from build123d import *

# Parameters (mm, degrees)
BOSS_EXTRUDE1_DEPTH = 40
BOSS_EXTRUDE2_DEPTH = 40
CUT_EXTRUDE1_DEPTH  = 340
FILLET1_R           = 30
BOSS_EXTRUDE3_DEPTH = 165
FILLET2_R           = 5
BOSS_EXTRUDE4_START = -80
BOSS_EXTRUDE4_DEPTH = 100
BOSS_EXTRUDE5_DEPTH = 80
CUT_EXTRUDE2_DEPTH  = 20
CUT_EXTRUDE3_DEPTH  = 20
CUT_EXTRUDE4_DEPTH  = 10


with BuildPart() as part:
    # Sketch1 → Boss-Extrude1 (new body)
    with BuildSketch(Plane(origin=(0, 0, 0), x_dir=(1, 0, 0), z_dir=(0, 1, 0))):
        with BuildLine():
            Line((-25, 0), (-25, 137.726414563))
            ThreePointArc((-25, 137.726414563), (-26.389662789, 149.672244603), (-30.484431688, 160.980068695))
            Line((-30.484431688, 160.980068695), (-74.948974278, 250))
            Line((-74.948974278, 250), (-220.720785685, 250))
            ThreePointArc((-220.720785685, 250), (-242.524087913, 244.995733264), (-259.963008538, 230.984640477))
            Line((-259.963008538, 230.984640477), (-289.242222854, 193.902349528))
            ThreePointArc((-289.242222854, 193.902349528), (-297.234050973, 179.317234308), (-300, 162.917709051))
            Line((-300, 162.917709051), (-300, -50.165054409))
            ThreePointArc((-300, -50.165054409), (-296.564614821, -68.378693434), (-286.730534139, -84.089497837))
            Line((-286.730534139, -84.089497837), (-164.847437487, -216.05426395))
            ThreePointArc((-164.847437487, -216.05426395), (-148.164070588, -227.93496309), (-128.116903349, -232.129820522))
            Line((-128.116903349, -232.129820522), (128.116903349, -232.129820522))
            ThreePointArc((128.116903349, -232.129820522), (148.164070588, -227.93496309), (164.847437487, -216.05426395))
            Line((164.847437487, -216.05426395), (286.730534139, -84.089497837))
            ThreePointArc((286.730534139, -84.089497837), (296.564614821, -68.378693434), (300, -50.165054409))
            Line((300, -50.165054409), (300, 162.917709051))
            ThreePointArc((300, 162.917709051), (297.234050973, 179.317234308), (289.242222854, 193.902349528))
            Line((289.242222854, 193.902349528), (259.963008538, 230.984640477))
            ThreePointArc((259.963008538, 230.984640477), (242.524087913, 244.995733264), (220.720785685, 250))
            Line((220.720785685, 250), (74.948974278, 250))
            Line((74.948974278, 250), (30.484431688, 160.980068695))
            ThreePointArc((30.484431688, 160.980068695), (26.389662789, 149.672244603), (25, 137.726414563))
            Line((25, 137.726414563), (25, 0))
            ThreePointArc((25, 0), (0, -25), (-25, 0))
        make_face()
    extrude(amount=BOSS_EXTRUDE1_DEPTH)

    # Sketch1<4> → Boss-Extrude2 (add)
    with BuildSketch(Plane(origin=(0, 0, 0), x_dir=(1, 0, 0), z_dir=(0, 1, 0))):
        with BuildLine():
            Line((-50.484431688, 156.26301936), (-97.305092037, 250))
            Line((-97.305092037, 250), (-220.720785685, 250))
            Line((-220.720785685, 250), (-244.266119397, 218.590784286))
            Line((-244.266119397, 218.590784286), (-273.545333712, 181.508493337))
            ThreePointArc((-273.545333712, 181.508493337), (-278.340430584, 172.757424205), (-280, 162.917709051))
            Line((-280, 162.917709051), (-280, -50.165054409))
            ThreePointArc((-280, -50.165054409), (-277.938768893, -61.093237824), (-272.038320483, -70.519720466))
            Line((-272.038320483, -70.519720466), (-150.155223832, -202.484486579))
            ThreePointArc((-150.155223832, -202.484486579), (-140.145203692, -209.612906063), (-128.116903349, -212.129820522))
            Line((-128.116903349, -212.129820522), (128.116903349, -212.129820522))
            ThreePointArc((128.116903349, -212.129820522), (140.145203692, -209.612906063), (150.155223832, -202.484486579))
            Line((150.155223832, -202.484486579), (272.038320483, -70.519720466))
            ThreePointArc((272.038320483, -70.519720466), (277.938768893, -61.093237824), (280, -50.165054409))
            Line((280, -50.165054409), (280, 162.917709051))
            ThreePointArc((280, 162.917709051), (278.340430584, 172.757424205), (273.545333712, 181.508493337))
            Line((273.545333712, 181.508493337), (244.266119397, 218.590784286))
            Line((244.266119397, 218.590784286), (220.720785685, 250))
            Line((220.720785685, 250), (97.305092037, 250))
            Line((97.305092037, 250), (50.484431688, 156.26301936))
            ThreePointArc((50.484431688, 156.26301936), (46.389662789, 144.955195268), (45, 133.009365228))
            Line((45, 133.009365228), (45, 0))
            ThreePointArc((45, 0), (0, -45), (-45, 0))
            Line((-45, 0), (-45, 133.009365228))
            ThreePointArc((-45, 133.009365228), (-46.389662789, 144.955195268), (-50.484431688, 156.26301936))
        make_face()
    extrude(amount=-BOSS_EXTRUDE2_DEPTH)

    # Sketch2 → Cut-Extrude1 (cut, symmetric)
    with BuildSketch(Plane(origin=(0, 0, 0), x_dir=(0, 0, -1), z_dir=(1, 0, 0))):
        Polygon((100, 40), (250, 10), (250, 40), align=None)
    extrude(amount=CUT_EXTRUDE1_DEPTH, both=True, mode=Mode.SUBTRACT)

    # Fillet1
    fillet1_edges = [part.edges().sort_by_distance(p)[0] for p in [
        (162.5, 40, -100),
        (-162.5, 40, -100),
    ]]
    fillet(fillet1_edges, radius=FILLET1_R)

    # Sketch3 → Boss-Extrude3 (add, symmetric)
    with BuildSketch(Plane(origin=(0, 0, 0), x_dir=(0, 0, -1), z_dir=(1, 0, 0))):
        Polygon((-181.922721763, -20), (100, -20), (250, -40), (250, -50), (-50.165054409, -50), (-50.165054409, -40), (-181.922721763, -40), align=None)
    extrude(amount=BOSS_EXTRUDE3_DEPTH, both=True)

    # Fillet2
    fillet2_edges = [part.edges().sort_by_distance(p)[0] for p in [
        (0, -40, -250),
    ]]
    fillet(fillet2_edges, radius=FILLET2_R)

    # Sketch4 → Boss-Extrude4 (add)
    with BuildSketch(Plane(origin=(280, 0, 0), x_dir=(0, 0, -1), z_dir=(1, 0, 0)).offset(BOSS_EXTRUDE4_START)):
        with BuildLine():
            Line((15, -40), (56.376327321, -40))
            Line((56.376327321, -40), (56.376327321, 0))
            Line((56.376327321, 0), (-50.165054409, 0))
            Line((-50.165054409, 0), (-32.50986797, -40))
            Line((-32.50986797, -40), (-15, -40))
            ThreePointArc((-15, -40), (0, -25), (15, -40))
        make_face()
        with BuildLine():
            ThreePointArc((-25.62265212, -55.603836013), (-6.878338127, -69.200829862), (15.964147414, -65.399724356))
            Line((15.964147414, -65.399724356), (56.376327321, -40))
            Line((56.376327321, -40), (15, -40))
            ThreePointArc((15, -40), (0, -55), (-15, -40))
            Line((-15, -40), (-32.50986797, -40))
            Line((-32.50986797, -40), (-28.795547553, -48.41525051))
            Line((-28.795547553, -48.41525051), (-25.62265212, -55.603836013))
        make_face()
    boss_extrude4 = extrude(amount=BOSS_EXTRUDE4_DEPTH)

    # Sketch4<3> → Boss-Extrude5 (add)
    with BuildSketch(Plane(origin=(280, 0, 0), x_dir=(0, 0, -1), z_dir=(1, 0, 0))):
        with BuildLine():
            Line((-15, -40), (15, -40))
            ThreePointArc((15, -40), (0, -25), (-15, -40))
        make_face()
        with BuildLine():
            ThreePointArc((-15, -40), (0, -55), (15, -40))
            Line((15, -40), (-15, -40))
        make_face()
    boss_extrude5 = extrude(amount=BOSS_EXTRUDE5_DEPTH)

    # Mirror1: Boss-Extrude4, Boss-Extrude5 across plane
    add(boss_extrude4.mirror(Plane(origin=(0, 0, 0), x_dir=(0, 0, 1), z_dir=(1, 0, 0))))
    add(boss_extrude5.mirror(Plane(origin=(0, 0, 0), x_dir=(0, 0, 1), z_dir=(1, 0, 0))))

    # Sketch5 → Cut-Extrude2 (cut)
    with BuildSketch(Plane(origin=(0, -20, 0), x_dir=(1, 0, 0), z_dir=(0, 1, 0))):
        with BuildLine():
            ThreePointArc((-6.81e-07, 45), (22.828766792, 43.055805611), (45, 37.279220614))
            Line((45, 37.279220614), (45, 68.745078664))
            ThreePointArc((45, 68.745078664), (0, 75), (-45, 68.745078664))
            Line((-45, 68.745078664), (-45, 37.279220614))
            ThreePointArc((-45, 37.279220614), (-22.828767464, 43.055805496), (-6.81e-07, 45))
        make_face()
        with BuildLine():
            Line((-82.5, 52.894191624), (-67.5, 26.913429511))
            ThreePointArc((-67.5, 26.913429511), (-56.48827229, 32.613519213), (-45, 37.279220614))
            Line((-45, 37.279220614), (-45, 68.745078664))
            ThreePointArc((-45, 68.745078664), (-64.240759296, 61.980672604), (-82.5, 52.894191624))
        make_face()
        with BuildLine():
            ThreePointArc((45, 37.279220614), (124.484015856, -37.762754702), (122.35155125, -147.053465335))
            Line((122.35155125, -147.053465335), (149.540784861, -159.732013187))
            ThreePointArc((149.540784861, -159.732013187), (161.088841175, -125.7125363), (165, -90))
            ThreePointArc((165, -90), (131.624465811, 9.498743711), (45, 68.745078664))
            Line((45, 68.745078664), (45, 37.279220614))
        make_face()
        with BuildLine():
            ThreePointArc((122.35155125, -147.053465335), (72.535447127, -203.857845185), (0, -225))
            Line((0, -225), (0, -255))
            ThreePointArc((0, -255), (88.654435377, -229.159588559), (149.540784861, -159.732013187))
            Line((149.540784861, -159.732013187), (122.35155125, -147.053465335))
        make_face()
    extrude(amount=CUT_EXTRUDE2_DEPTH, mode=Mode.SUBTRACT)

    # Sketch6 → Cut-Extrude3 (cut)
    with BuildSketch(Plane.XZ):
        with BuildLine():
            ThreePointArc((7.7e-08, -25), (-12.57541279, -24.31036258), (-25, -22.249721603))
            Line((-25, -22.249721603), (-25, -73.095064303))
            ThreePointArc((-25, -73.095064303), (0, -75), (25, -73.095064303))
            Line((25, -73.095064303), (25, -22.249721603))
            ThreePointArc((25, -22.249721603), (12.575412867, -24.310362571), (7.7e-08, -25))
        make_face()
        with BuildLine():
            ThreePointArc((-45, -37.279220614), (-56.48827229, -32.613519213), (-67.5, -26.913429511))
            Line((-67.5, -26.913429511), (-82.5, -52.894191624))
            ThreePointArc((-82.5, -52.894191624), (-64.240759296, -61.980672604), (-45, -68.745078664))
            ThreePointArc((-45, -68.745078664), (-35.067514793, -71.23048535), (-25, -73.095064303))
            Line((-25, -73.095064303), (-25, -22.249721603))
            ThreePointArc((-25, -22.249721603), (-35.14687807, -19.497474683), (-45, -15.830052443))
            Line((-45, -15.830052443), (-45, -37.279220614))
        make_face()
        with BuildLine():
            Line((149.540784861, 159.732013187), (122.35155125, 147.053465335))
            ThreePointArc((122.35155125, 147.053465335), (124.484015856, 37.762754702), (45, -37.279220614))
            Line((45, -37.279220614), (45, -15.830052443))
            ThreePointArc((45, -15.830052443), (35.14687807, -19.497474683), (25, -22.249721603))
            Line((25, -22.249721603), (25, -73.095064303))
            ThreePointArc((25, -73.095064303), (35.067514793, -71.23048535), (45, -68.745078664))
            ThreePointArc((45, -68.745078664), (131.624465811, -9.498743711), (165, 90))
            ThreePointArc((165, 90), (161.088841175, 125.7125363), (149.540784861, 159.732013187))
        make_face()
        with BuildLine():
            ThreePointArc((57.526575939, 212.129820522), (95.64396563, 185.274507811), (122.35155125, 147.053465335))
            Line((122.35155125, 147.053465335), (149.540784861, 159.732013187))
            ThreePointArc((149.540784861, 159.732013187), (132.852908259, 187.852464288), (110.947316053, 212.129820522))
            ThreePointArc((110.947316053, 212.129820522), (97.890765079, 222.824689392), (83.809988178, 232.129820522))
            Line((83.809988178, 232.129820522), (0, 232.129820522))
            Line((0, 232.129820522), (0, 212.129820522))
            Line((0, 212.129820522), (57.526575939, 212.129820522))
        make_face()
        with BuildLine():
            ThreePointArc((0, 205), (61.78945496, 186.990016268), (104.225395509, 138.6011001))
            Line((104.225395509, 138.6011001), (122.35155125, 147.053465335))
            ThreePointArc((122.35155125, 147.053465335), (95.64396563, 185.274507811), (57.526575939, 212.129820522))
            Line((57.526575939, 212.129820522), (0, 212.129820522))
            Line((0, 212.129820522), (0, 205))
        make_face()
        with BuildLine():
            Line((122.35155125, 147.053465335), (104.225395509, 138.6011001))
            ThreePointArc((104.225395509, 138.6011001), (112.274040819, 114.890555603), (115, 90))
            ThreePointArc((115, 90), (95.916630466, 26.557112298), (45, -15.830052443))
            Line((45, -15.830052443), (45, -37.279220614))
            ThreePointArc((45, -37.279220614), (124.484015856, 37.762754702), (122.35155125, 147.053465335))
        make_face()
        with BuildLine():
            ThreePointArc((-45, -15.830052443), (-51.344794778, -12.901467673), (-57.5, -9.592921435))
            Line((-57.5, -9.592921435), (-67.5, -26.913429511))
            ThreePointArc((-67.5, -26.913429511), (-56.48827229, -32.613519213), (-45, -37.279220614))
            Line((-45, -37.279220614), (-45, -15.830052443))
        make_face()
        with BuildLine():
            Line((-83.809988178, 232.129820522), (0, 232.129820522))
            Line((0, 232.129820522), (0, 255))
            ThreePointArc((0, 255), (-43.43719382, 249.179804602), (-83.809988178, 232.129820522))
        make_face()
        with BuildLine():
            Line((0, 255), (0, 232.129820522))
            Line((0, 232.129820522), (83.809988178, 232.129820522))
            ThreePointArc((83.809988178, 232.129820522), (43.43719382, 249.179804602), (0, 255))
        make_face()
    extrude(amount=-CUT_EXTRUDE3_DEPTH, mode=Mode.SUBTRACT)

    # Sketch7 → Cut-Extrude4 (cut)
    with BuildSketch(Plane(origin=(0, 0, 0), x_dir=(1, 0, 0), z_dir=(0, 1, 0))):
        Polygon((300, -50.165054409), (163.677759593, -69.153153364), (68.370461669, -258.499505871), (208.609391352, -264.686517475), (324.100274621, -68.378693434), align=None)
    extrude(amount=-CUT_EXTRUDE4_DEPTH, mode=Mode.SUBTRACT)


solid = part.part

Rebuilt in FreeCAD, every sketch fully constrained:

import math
import FreeCAD as App
import Part
import Sketcher

V = App.Vector
Q = App.Units.Quantity


def edges_at(feature, points):
    """Names of the edges that pass closest to the given points."""
    edges = feature.Shape.Edges
    near = lambda p: min(range(len(edges)), key=lambda i: edges[i].distToShape(Part.Vertex(*p))[0])
    return sorted({f"Edge{near(p) + 1}" for p in points})


def add_polygon(sketch, points):
    """Adds a closed chain of lines whose ends are joined by coincident constraints."""
    first, n = sketch.GeometryCount, len(points)
    for a, b in zip(points, points[1:] + points[:1]):
        sketch.addGeometry(Part.LineSegment(App.Vector(*a, 0), App.Vector(*b, 0)), False)
    for i in range(n):
        sketch.addConstraint(Sketcher.Constraint("Coincident", first + i, 2, first + (i + 1) % n, 1))

doc = App.newDocument("Part")
body = doc.addObject("PartDesign::Body", "Body")

# Sketch on XZ plane
sketch1 = body.newObject("Sketcher::SketchObject", "Sketch")
sketch1.AttachmentSupport = (doc.getObject("XZ_Plane"), [""])
sketch1.MapMode = "FlatFace"
sketch1.addGeometry([
    Part.LineSegment(V(-25, 0, 0), V(-25, -137.726415, 0)),  # 0
    Part.ArcOfCircle(Part.Circle(V(-77.03925, -137.726415, 0), V(0, 0, 1), 52.03925), math.radians(-26.541658), math.radians(0)),  # 1
    Part.LineSegment(V(-30.484432, -160.980069, 0), V(-74.948974, -250, 0)),  # 2
    Part.LineSegment(V(-74.948974, -250, 0), V(-220.720786, -250, 0)),  # 3
    Part.ArcOfCircle(Part.Circle(V(-220.720786, -200, 0), V(0, 0, 1), 50), math.radians(-141.706295), math.radians(-90)),  # 4
    Part.LineSegment(V(-259.963009, -230.98464, 0), V(-289.242223, -193.90235, 0)),  # 5
    Part.ArcOfCircle(Part.Circle(V(-250, -162.917709, 0), V(0, 0, 1), 50), math.radians(-180), math.radians(-141.706295)),  # 6
    Part.LineSegment(V(-300, -162.917709, 0), V(-300, 50.165054, 0)),  # 7
    Part.ArcOfCircle(Part.Circle(V(-250, 50.165054, 0), V(0, 0, 1), 50), math.radians(137.27433), math.radians(180)),  # 8
    Part.LineSegment(V(-286.730534, 84.089498, 0), V(-164.847437, 216.054264, 0)),  # 9
    Part.ArcOfCircle(Part.Circle(V(-128.116903, 182.129821, 0), V(0, 0, 1), 50), math.radians(90), math.radians(137.27433)),  # 10
    Part.LineSegment(V(-128.116903, 232.129821, 0), V(128.116903, 232.129821, 0)),  # 11
    Part.ArcOfCircle(Part.Circle(V(128.116903, 182.129821, 0), V(0, 0, 1), 50), math.radians(42.72567), math.radians(90)),  # 12
    Part.LineSegment(V(164.847437, 216.054264, 0), V(286.730534, 84.089498, 0)),  # 13
    Part.ArcOfCircle(Part.Circle(V(250, 50.165054, 0), V(0, 0, 1), 50), math.radians(0), math.radians(42.72567)),  # 14
    Part.LineSegment(V(300, 50.165054, 0), V(300, -162.917709, 0)),  # 15
    Part.ArcOfCircle(Part.Circle(V(250, -162.917709, 0), V(0, 0, 1), 50), math.radians(-38.293705), math.radians(0)),  # 16
    Part.LineSegment(V(289.242223, -193.90235, 0), V(259.963009, -230.98464, 0)),  # 17
    Part.ArcOfCircle(Part.Circle(V(220.720786, -200, 0), V(0, 0, 1), 50), math.radians(-90), math.radians(-38.293705)),  # 18
    Part.LineSegment(V(220.720786, -250, 0), V(74.948974, -250, 0)),  # 19
    Part.LineSegment(V(74.948974, -250, 0), V(30.484432, -160.980069, 0)),  # 20
    Part.ArcOfCircle(Part.Circle(V(77.03925, -137.726415, 0), V(0, 0, 1), 52.03925), math.radians(-180), math.radians(-153.458342)),  # 21
    Part.LineSegment(V(25, -137.726415, 0), V(25, 0, 0)),  # 22
    Part.ArcOfCircle(Part.Circle(V(0, 0, 0), V(0, 0, 1), 25), math.radians(0), math.radians(180)),  # 23
], False)
sketch1.addConstraint([
    Sketcher.Constraint("Tangent", 0, 2, 1, 2),
    Sketcher.Constraint("Tangent", 1, 1, 2, 1),
    Sketcher.Constraint("Coincident", 2, 2, 3, 1),
    Sketcher.Constraint("Tangent", 3, 2, 4, 2),
    Sketcher.Constraint("Tangent", 4, 1, 5, 1),
    Sketcher.Constraint("Tangent", 5, 2, 6, 2),
    Sketcher.Constraint("Tangent", 6, 1, 7, 1),
    Sketcher.Constraint("Tangent", 7, 2, 8, 2),
    Sketcher.Constraint("Tangent", 8, 1, 9, 1),
    Sketcher.Constraint("Tangent", 9, 2, 10, 2),
    Sketcher.Constraint("Tangent", 10, 1, 11, 1),
    Sketcher.Constraint("Tangent", 11, 2, 12, 2),
    Sketcher.Constraint("Tangent", 12, 1, 13, 1),
    Sketcher.Constraint("Tangent", 13, 2, 14, 2),
    Sketcher.Constraint("Tangent", 14, 1, 15, 1),
    Sketcher.Constraint("Tangent", 15, 2, 16, 2),
    Sketcher.Constraint("Tangent", 16, 1, 17, 1),
    Sketcher.Constraint("Tangent", 17, 2, 18, 2),
    Sketcher.Constraint("Tangent", 18, 1, 19, 1),
    Sketcher.Constraint("Coincident", 19, 2, 20, 1),
    Sketcher.Constraint("Tangent", 20, 2, 21, 2),
    Sketcher.Constraint("Tangent", 21, 1, 22, 1),
    Sketcher.Constraint("Tangent", 22, 2, 23, 1),
    Sketcher.Constraint("Tangent", 23, 2, 0, 1),
    Sketcher.Constraint("Vertical", 0),
    Sketcher.Constraint("Horizontal", 3),
    Sketcher.Constraint("Vertical", 7),
    Sketcher.Constraint("Horizontal", 11),
    Sketcher.Constraint("Vertical", 15),
    Sketcher.Constraint("Horizontal", 19),
    Sketcher.Constraint("Vertical", 22),
    Sketcher.Constraint("Coincident", 23, 3, -1, 1),
    Sketcher.Constraint("Equal", 4, 6),
    Sketcher.Constraint("Equal", 6, 8),
    Sketcher.Constraint("Equal", 8, 10),
    Sketcher.Constraint("Equal", 10, 12),
    Sketcher.Constraint("Equal", 12, 14),
    Sketcher.Constraint("Equal", 14, 16),
    Sketcher.Constraint("Equal", 16, 18),
    Sketcher.Constraint("Equal", 1, 21),
    Sketcher.Constraint("Symmetric", 8, 3, 14, 3, -2),
    Sketcher.Constraint("Symmetric", 4, 3, 18, 3, -2),
    Sketcher.Constraint("Symmetric", 1, 1, 20, 2, -2),
    Sketcher.Constraint("Horizontal", 6, 3, 16, 3),
    Sketcher.Constraint("Horizontal", 9, 2, 12, 1),
    Sketcher.Constraint("Radius", 4, 50.0),
    Sketcher.Constraint("Radius", 23, 25.0),
    Sketcher.Constraint("DistanceY", 4, 3, -1, 1, 200.0),
    Sketcher.Constraint("DistanceX", 6, 3, -1, 1, 250.0),
    Sketcher.Constraint("Radius", 1, 52.03925),
    Sketcher.Constraint("DistanceX", 3, 2, 3, 1, 145.771811),
    Sketcher.Constraint("Distance", 5, 47.247949),
    Sketcher.Constraint("Distance", 9, 179.639051),
    Sketcher.Constraint("DistanceX", 11, 1, 11, 2, 256.233807),
    Sketcher.Constraint("DistanceY", 0, 2, 0, 1, 137.726415),
    Sketcher.Constraint("DistanceY", 7, 1, 7, 2, 213.082763),
    Sketcher.Constraint("DistanceY", 6, 3, -1, 1, 162.917709),
])
pad1 = body.newObject("PartDesign::Pad", "Pad")
pad1.Profile = sketch1
pad1.Length = 40
pad1.Reversed = True

# Sketch on XZ plane
sketch2 = body.newObject("Sketcher::SketchObject", "Sketch001")
sketch2.AttachmentSupport = (doc.getObject("XZ_Plane"), [""])
sketch2.MapMode = "FlatFace"
sketch2.addGeometry([
    Part.LineSegment(V(-50.484432, -156.263019, 0), V(-97.305092, -250, 0)),  # 0
    Part.LineSegment(V(-97.305092, -250, 0), V(-220.720786, -250, 0)),  # 1
    Part.LineSegment(V(-220.720786, -250, 0), V(-244.266119, -218.590784, 0)),  # 2
    Part.LineSegment(V(-244.266119, -218.590784, 0), V(-273.545334, -181.508493, 0)),  # 3
    Part.ArcOfCircle(Part.Circle(V(-250, -162.917709, 0), V(0, 0, 1), 30), math.radians(180), math.radians(218.293705)),  # 4
    Part.LineSegment(V(-280, -162.917709, 0), V(-280, 50.165054, 0)),  # 5
    Part.ArcOfCircle(Part.Circle(V(-250, 50.165054, 0), V(0, 0, 1), 30), math.radians(137.27433), math.radians(180)),  # 6
    Part.LineSegment(V(-272.03832, 70.51972, 0), V(-150.155224, 202.484487, 0)),  # 7
    Part.ArcOfCircle(Part.Circle(V(-128.116903, 182.129821, 0), V(0, 0, 1), 30), math.radians(90), math.radians(137.27433)),  # 8
    Part.LineSegment(V(-128.116903, 212.129821, 0), V(128.116903, 212.129821, 0)),  # 9
    Part.ArcOfCircle(Part.Circle(V(128.116903, 182.129821, 0), V(0, 0, 1), 30), math.radians(42.72567), math.radians(90)),  # 10
    Part.LineSegment(V(150.155224, 202.484487, 0), V(272.03832, 70.51972, 0)),  # 11
    Part.ArcOfCircle(Part.Circle(V(250, 50.165054, 0), V(0, 0, 1), 30), math.radians(0), math.radians(42.72567)),  # 12
    Part.LineSegment(V(280, 50.165054, 0), V(280, -162.917709, 0)),  # 13
    Part.ArcOfCircle(Part.Circle(V(250, -162.917709, 0), V(0, 0, 1), 30), math.radians(-38.293705), math.radians(0)),  # 14
    Part.LineSegment(V(273.545334, -181.508493, 0), V(244.266119, -218.590784, 0)),  # 15
    Part.LineSegment(V(244.266119, -218.590784, 0), V(220.720786, -250, 0)),  # 16
    Part.LineSegment(V(220.720786, -250, 0), V(97.305092, -250, 0)),  # 17
    Part.LineSegment(V(97.305092, -250, 0), V(50.484432, -156.263019, 0)),  # 18
    Part.ArcOfCircle(Part.Circle(V(97.03925, -133.009365, 0), V(0, 0, 1), 52.03925), math.radians(-180), math.radians(-153.458342)),  # 19
    Part.LineSegment(V(45, -133.009365, 0), V(45, 0, 0)),  # 20
    Part.ArcOfCircle(Part.Circle(V(0, 0, 0), V(0, 0, 1), 45), math.radians(0), math.radians(180)),  # 21
    Part.LineSegment(V(-45, 0, 0), V(-45, -133.009365, 0)),  # 22
    Part.ArcOfCircle(Part.Circle(V(-97.03925, -133.009365, 0), V(0, 0, 1), 52.03925), math.radians(-26.541658), math.radians(0)),  # 23
], False)
sketch2.addConstraint([
    Sketcher.Constraint("Coincident", 0, 2, 1, 1),
    Sketcher.Constraint("Coincident", 1, 2, 2, 1),
    Sketcher.Constraint("Coincident", 2, 2, 3, 1),
    Sketcher.Constraint("Tangent", 3, 2, 4, 2),
    Sketcher.Constraint("Tangent", 4, 1, 5, 1),
    Sketcher.Constraint("Tangent", 5, 2, 6, 2),
    Sketcher.Constraint("Tangent", 6, 1, 7, 1),
    Sketcher.Constraint("Tangent", 7, 2, 8, 2),
    Sketcher.Constraint("Tangent", 8, 1, 9, 1),
    Sketcher.Constraint("Tangent", 9, 2, 10, 2),
    Sketcher.Constraint("Tangent", 10, 1, 11, 1),
    Sketcher.Constraint("Tangent", 11, 2, 12, 2),
    Sketcher.Constraint("Tangent", 12, 1, 13, 1),
    Sketcher.Constraint("Tangent", 13, 2, 14, 2),
    Sketcher.Constraint("Tangent", 14, 1, 15, 1),
    Sketcher.Constraint("Coincident", 15, 2, 16, 1),
    Sketcher.Constraint("Coincident", 16, 2, 17, 1),
    Sketcher.Constraint("Coincident", 17, 2, 18, 1),
    Sketcher.Constraint("Tangent", 18, 2, 19, 2),
    Sketcher.Constraint("Tangent", 19, 1, 20, 1),
    Sketcher.Constraint("Tangent", 20, 2, 21, 1),
    Sketcher.Constraint("Tangent", 21, 2, 22, 1),
    Sketcher.Constraint("Tangent", 22, 2, 23, 2),
    Sketcher.Constraint("Tangent", 23, 1, 0, 1),
    Sketcher.Constraint("Horizontal", 1),
    Sketcher.Constraint("Vertical", 5),
    Sketcher.Constraint("Horizontal", 9),
    Sketcher.Constraint("Vertical", 13),
    Sketcher.Constraint("Horizontal", 17),
    Sketcher.Constraint("Vertical", 20),
    Sketcher.Constraint("Vertical", 22),
    Sketcher.Constraint("Coincident", 21, 3, -1, 1),
    Sketcher.Constraint("Equal", 4, 6),
    Sketcher.Constraint("Equal", 6, 8),
    Sketcher.Constraint("Equal", 8, 10),
    Sketcher.Constraint("Equal", 10, 12),
    Sketcher.Constraint("Equal", 12, 14),
    Sketcher.Constraint("Equal", 19, 23),
    Sketcher.Constraint("Symmetric", 6, 3, 12, 3, -2),
    Sketcher.Constraint("Symmetric", 3, 2, 14, 1, -2),
    Sketcher.Constraint("Symmetric", 1, 2, 16, 2, -2),
    Sketcher.Constraint("Symmetric", 18, 2, 23, 1, -2),
    Sketcher.Constraint("Horizontal", 7, 2, 10, 1),
    Sketcher.Constraint("Horizontal", 2, 2, 15, 2),
    Sketcher.Constraint("Radius", 4, 30.0),
    Sketcher.Constraint("Radius", 21, 45.0),
    Sketcher.Constraint("DistanceX", 4, 3, -1, 1, 250.0),
    Sketcher.Constraint("DistanceY", 0, 2, -1, 1, 250.0),
    Sketcher.Constraint("Radius", 19, 52.03925),
    Sketcher.Constraint("DistanceY", 6, 1, 8, 3, 111.6101),
    Sketcher.Constraint("Distance", 0, 104.779749),
    Sketcher.Constraint("Distance", 3, 47.247949),
    Sketcher.Constraint("Distance", 7, 179.639051),
    Sketcher.Constraint("DistanceX", 1, 2, 1, 1, 123.415694),
    Sketcher.Constraint("DistanceY", 5, 1, 5, 2, 213.082763),
    Sketcher.Constraint("DistanceY", 4, 3, -1, 1, 162.917709),
    Sketcher.Constraint("DistanceX", 2, 2, -1, 1, 244.266119),
    Sketcher.Constraint("DistanceX", -1, 1, 18, 2, 50.484432),
])
pad2 = body.newObject("PartDesign::Pad", "Pad001")
pad2.Profile = sketch2
pad2.Length = 40

# Sketch on YZ plane
sketch3 = body.newObject("Sketcher::SketchObject", "Sketch002")
sketch3.AttachmentSupport = (doc.getObject("YZ_Plane"), [""])
sketch3.MapMode = "FlatFace"
add_polygon(sketch3, [(40, -100), (10, -250), (40, -250)])  # lines 0-2
sketch3.addConstraint([
    Sketcher.Constraint("Horizontal", 1),
    Sketcher.Constraint("Vertical", 2),
    Sketcher.Constraint("DistanceX", 1, 1, 1, 2, 30.0),
    Sketcher.Constraint("DistanceY", 2, 1, 2, 2, 150.0),
    Sketcher.Constraint("DistanceX", -1, 1, 0, 2, 10.0),
    Sketcher.Constraint("DistanceY", 0, 2, -1, 1, 250.0),
])
pocket1 = body.newObject("PartDesign::Pocket", "Pocket")
pocket1.Profile = sketch3
pocket1.Length = 680
pocket1.Midplane = True
doc.recompute()

fillet = body.newObject("PartDesign::Fillet", "Fillet")
fillet.Base = (pocket1, edges_at(pocket1, [(162.5, 40, -100), (-162.5, 40, -100)]))
fillet.Radius = 30

# Sketch on YZ plane
sketch4 = body.newObject("Sketcher::SketchObject", "Sketch003")
sketch4.AttachmentSupport = (doc.getObject("YZ_Plane"), [""])
sketch4.MapMode = "FlatFace"
add_polygon(sketch4, [(-20, -100), (-20, 181.922722), (-40, 181.922722), (-40, 50.165054), (-50, 50.165054), (-50, -250), (-40, -250)])  # lines 0-6
sketch4.addConstraint([
    Sketcher.Constraint("Vertical", 0),
    Sketcher.Constraint("Horizontal", 1),
    Sketcher.Constraint("Vertical", 2),
    Sketcher.Constraint("Horizontal", 3),
    Sketcher.Constraint("Vertical", 4),
    Sketcher.Constraint("Horizontal", 5),
    Sketcher.Constraint("Vertical", 2, 2, 5, 2),
    Sketcher.Constraint("DistanceX", 1, 2, 1, 1, 20.0),
    Sketcher.Constraint("DistanceX", 3, 2, 3, 1, 10.0),
    Sketcher.Constraint("DistanceX", 0, 2, -1, 1, 20.0),
    Sketcher.Constraint("DistanceY", 4, 2, -1, 1, 250.0),
    Sketcher.Constraint("DistanceY", 6, 2, -1, 1, 100.0),
    Sketcher.Constraint("DistanceY", 0, 1, 0, 2, 281.922722),
    Sketcher.Constraint("DistanceY", 2, 2, 2, 1, 131.757667),
])
pad3 = body.newObject("PartDesign::Pad", "Pad002")
pad3.Profile = sketch4
pad3.Length = 330
pad3.Midplane = True
doc.recompute()

fillet2 = body.newObject("PartDesign::Fillet", "Fillet001")
fillet2.Base = (pad3, edges_at(pad3, [(0, -40, -250)]))
fillet2.Radius = 5

# Sketch on YZ plane
sketch5 = body.newObject("Sketcher::SketchObject", "Sketch004")
sketch5.AttachmentSupport = (doc.getObject("YZ_Plane"), [""])
sketch5.MapMode = "FlatFace"
sketch5.AttachmentOffset = App.Placement(V(0, 0, 200), App.Rotation())
sketch5.addGeometry([
    Part.LineSegment(V(-40, -56.376327, 0), V(0, -56.376327, 0)),  # 0
    Part.LineSegment(V(0, -56.376327, 0), V(0, 50.165054, 0)),  # 1
    Part.LineSegment(V(0, 50.165054, 0), V(-40, 32.509868, 0)),  # 2
    Part.LineSegment(V(-40, 32.509868, 0), V(-48.415251, 28.795548, 0)),  # 3
    Part.LineSegment(V(-48.415251, 28.795548, 0), V(-55.603836, 25.622652, 0)),  # 4
    Part.ArcOfCircle(Part.Circle(V(-40, 0, 0), V(0, 0, 1), 30), math.radians(121.340829), math.radians(212.150042)),  # 5
    Part.LineSegment(V(-65.399724, -15.964147, 0), V(-40, -56.376327, 0)),  # 6
    Part.Circle(V(-40, 0, 0), V(0, 0, 1), 15),  # 7
], False)
sketch5.addConstraint([
    Sketcher.Constraint("Coincident", 0, 2, 1, 1),
    Sketcher.Constraint("Coincident", 1, 2, 2, 1),
    Sketcher.Constraint("Coincident", 2, 2, 3, 1),
    Sketcher.Constraint("Coincident", 3, 2, 4, 1),
    Sketcher.Constraint("Coincident", 4, 2, 5, 1),
    Sketcher.Constraint("Tangent", 5, 2, 6, 1),
    Sketcher.Constraint("Coincident", 6, 2, 0, 1),
    Sketcher.Constraint("Horizontal", 0),
    Sketcher.Constraint("Vertical", 1),
    Sketcher.Constraint("Coincident", 7, 3, 5, 3),
    Sketcher.Constraint("PointOnObject", 5, 3, -1),
    Sketcher.Constraint("PointOnObject", 0, 2, -2),
    Sketcher.Constraint("Parallel", 2, 3),
    Sketcher.Constraint("Parallel", 3, 4),
    Sketcher.Constraint("Vertical", 7, 3, 2, 2),
    Sketcher.Constraint("Vertical", 2, 2, 6, 2),
    Sketcher.Constraint("Diameter", 7, 30.0),
    Sketcher.Constraint("Radius", 5, 30.0),
    Sketcher.Constraint("DistanceX", 0, 1, 0, 2, 40.0),
    Sketcher.Constraint("DistanceY", 1, 1, 1, 2, 106.541382),
    Sketcher.Constraint("DistanceY", 5, 2, 4, 2, 41.5868),
    Sketcher.Constraint("Distance", 3, 9.198512),
    Sketcher.Constraint("Distance", 6, 47.731439),
])
pad4 = body.newObject("PartDesign::Pad", "Pad003")
pad4.Profile = sketch5
pad4.Length = 100

# Sketch on YZ plane
sketch6 = body.newObject("Sketcher::SketchObject", "Sketch005")
sketch6.AttachmentSupport = (doc.getObject("YZ_Plane"), [""])
sketch6.MapMode = "FlatFace"
sketch6.AttachmentOffset = App.Placement(V(0, 0, 280), App.Rotation())
sketch6.addGeometry(Part.Circle(V(-40, 0, 0), V(0, 0, 1), 15), False)
sketch6.addConstraint([
    Sketcher.Constraint("PointOnObject", 0, 3, -1),
    Sketcher.Constraint("Diameter", 0, 30.0),
    Sketcher.Constraint("DistanceX", 0, 3, -1, 1, 40.0),
])
pad5 = body.newObject("PartDesign::Pad", "Pad004")
pad5.Profile = sketch6
pad5.Length = 80
doc.recompute()

mirrored = body.newObject("PartDesign::Mirrored", "Mirrored")
mirrored.Originals = [pad4, pad5]
mirrored.MirrorPlane = (doc.getObject("YZ_Plane"), [""])
body.Tip = mirrored

# Sketch on XZ plane
sketch7 = body.newObject("Sketcher::SketchObject", "Sketch006")
sketch7.AttachmentSupport = (doc.getObject("XZ_Plane"), [""])
sketch7.MapMode = "FlatFace"
sketch7.AttachmentOffset = App.Placement(V(0, 0, 20), App.Rotation())
sketch7.addGeometry([
    Part.ArcOfCircle(Part.Circle(V(0, 90, 0), V(0, 0, 1), 135), math.radians(-90), math.radians(-70.528779)),  # 0
    Part.ArcOfCircle(Part.Circle(V(0, 90, 0), V(0, 0, 1), 135), math.radians(-70.528779), math.radians(25)),  # 1
    Part.ArcOfCircle(Part.Circle(V(0, 90, 0), V(0, 0, 1), 135), math.radians(25), math.radians(90)),  # 2
    Part.LineSegment(V(0, 225, 0), V(0, 255, 0)),  # 3
    Part.ArcOfCircle(Part.Circle(V(0, 90, 0), V(0, 0, 1), 165), math.radians(25), math.radians(90)),  # 4
    Part.ArcOfCircle(Part.Circle(V(0, 90, 0), V(0, 0, 1), 165), math.radians(0), math.radians(25)),  # 5
    Part.ArcOfCircle(Part.Circle(V(0, 90, 0), V(0, 0, 1), 165), math.radians(-74.17338), math.radians(0)),  # 6
    Part.ArcOfCircle(Part.Circle(V(0, 90, 0), V(0, 0, 1), 165), math.radians(-105.82662), math.radians(-74.17338)),  # 7
    Part.ArcOfCircle(Part.Circle(V(0, 90, 0), V(0, 0, 1), 165), math.radians(-120), math.radians(-105.82662)),  # 8
    Part.LineSegment(V(-82.5, -52.894192, 0), V(-67.5, -26.91343, 0)),  # 9
    Part.ArcOfCircle(Part.Circle(V(0, 90, 0), V(0, 0, 1), 135), math.radians(-120), math.radians(-109.471221)),  # 10
    Part.ArcOfCircle(Part.Circle(V(0, 90, 0), V(0, 0, 1), 135), math.radians(-109.471221), math.radians(-90)),  # 11
], False)
sketch7.addConstraint([
    Sketcher.Constraint("Tangent", 0, 2, 1, 1),
    Sketcher.Constraint("Tangent", 1, 2, 2, 1),
    Sketcher.Constraint("Coincident", 2, 2, 3, 1),
    Sketcher.Constraint("Coincident", 3, 2, 4, 2),
    Sketcher.Constraint("Tangent", 4, 1, 5, 2),
    Sketcher.Constraint("Tangent", 5, 1, 6, 2),
    Sketcher.Constraint("Tangent", 6, 1, 7, 2),
    Sketcher.Constraint("Tangent", 7, 1, 8, 2),
    Sketcher.Constraint("Coincident", 8, 1, 9, 1),
    Sketcher.Constraint("Coincident", 9, 2, 10, 1),
    Sketcher.Constraint("Tangent", 10, 2, 11, 1),
    Sketcher.Constraint("Tangent", 11, 2, 0, 1),
    Sketcher.Constraint("Vertical", 3),
    Sketcher.Constraint("Coincident", 2, 3, 0, 3),
    Sketcher.Constraint("Coincident", 4, 3, 0, 3),
    Sketcher.Constraint("Coincident", 6, 3, 0, 3),
    Sketcher.Constraint("Coincident", 8, 3, 0, 3),
    Sketcher.Constraint("Coincident", 10, 3, 0, 3),
    Sketcher.Constraint("Symmetric", 6, 1, 7, 1, -2),
    Sketcher.Constraint("PointOnObject", 2, 2, -2),
    Sketcher.Constraint("PointOnObject", 11, 2, -2),
    Sketcher.Constraint("Horizontal", 11, 3, 5, 1),
    Sketcher.Constraint("Horizontal", 0, 2, 10, 2),
    Sketcher.Constraint("Vertical", 0, 2, 6, 1),
    Sketcher.Constraint("Radius", 0, 135.0),
    Sketcher.Constraint("Radius", 4, 165.0),
    Sketcher.Constraint("Angle", 9, Q("60 deg")),
    Sketcher.Constraint("DistanceY", -1, 1, 0, 3, 90.0),
    Sketcher.Constraint("DistanceX", -1, 1, 0, 2, 45.0),
    Sketcher.Constraint("DistanceX", 8, 1, -1, 1, 82.5),
    Sketcher.Constraint("DistanceX", -1, 1, 1, 2, 122.351551),
    Sketcher.Constraint("DistanceX", -1, 1, 4, 1, 149.540785),
])
pocket2 = body.newObject("PartDesign::Pocket", "Pocket001")
pocket2.Profile = sketch7
pocket2.Length = 20

# Sketch on XZ plane
sketch8 = body.newObject("Sketcher::SketchObject", "Sketch007")
sketch8.AttachmentSupport = (doc.getObject("XZ_Plane"), [""])
sketch8.MapMode = "FlatFace"
sketch8.addGeometry([
    Part.ArcOfCircle(Part.Circle(V(0, 90, 0), V(0, 0, 1), 115), math.radians(-102.555858), math.radians(-90)),  # 0
    Part.ArcOfCircle(Part.Circle(V(0, 90, 0), V(0, 0, 1), 115), math.radians(-113.035684), math.radians(-102.555858)),  # 1
    Part.ArcOfCircle(Part.Circle(V(0, 90, 0), V(0, 0, 1), 115), math.radians(-120), math.radians(-113.035684)),  # 2
    Part.LineSegment(V(-57.5, -9.592921, 0), V(-67.5, -26.91343, 0)),  # 3
    Part.LineSegment(V(-67.5, -26.91343, 0), V(-82.5, -52.894192, 0)),  # 4
    Part.ArcOfCircle(Part.Circle(V(0, 90, 0), V(0, 0, 1), 165), math.radians(-120), math.radians(-105.82662)),  # 5
    Part.ArcOfCircle(Part.Circle(V(0, 90, 0), V(0, 0, 1), 165), math.radians(-105.82662), math.radians(-98.714742)),  # 6
    Part.ArcOfCircle(Part.Circle(V(0, 90, 0), V(0, 0, 1), 165), math.radians(-98.714742), math.radians(-81.285258)),  # 7
    Part.ArcOfCircle(Part.Circle(V(0, 90, 0), V(0, 0, 1), 165), math.radians(-81.285258), math.radians(-74.17338)),  # 8
    Part.ArcOfCircle(Part.Circle(V(0, 90, 0), V(0, 0, 1), 165), math.radians(-74.17338), math.radians(0)),  # 9
    Part.ArcOfCircle(Part.Circle(V(0, 90, 0), V(0, 0, 1), 165), math.radians(0), math.radians(25)),  # 10
    Part.ArcOfCircle(Part.Circle(V(0, 90, 0), V(0, 0, 1), 165), math.radians(25), math.radians(47.746813)),  # 11
    Part.ArcOfCircle(Part.Circle(V(0, 90, 0), V(0, 0, 1), 165), math.radians(47.746813), math.radians(59.473334)),  # 12
    Part.ArcOfCircle(Part.Circle(V(0, 90, 0), V(0, 0, 1), 165), math.radians(59.473334), math.radians(90)),  # 13
    Part.ArcOfCircle(Part.Circle(V(0, 90, 0), V(0, 0, 1), 165), math.radians(90), math.radians(120.526666)),  # 14
    Part.LineSegment(V(-83.809988, 232.129821, 0), V(0, 232.129821, 0)),  # 15
    Part.LineSegment(V(0, 232.129821, 0), V(0, 205, 0)),  # 16
    Part.ArcOfCircle(Part.Circle(V(0, 90, 0), V(0, 0, 1), 115), math.radians(25), math.radians(90)),  # 17
    Part.ArcOfCircle(Part.Circle(V(0, 90, 0), V(0, 0, 1), 115), math.radians(0), math.radians(25)),  # 18
    Part.ArcOfCircle(Part.Circle(V(0, 90, 0), V(0, 0, 1), 115), math.radians(-66.964316), math.radians(0)),  # 19
    Part.ArcOfCircle(Part.Circle(V(0, 90, 0), V(0, 0, 1), 115), math.radians(-77.444142), math.radians(-66.964316)),  # 20
    Part.ArcOfCircle(Part.Circle(V(0, 90, 0), V(0, 0, 1), 115), math.radians(-90), math.radians(-77.444142)),  # 21
], False)
sketch8.addConstraint([
    Sketcher.Constraint("Tangent", 0, 1, 1, 2),
    Sketcher.Constraint("Tangent", 1, 1, 2, 2),
    Sketcher.Constraint("Coincident", 2, 1, 3, 1),
    Sketcher.Constraint("Coincident", 3, 2, 4, 1),
    Sketcher.Constraint("Coincident", 4, 2, 5, 1),
    Sketcher.Constraint("Tangent", 5, 2, 6, 1),
    Sketcher.Constraint("Tangent", 6, 2, 7, 1),
    Sketcher.Constraint("Tangent", 7, 2, 8, 1),
    Sketcher.Constraint("Tangent", 8, 2, 9, 1),
    Sketcher.Constraint("Tangent", 9, 2, 10, 1),
    Sketcher.Constraint("Tangent", 10, 2, 11, 1),
    Sketcher.Constraint("Tangent", 11, 2, 12, 1),
    Sketcher.Constraint("Tangent", 12, 2, 13, 1),
    Sketcher.Constraint("Tangent", 13, 2, 14, 1),
    Sketcher.Constraint("Coincident", 14, 2, 15, 1),
    Sketcher.Constraint("Coincident", 15, 2, 16, 1),
    Sketcher.Constraint("Coincident", 16, 2, 17, 2),
    Sketcher.Constraint("Tangent", 17, 1, 18, 2),
    Sketcher.Constraint("Tangent", 18, 1, 19, 2),
    Sketcher.Constraint("Tangent", 19, 1, 20, 2),
    Sketcher.Constraint("Tangent", 20, 1, 21, 2),
    Sketcher.Constraint("Tangent", 21, 1, 0, 2),
    Sketcher.Constraint("Horizontal", 15),
    Sketcher.Constraint("Vertical", 16),
    Sketcher.Constraint("Coincident", 2, 3, 0, 3),
    Sketcher.Constraint("Coincident", 5, 3, 0, 3),
    Sketcher.Constraint("Coincident", 7, 3, 0, 3),
    Sketcher.Constraint("Coincident", 9, 3, 0, 3),
    Sketcher.Constraint("Coincident", 11, 3, 0, 3),
    Sketcher.Constraint("Coincident", 13, 3, 0, 3),
    Sketcher.Constraint("Coincident", 17, 3, 0, 3),
    Sketcher.Constraint("Coincident", 19, 3, 0, 3),
    Sketcher.Constraint("Equal", 13, 14),
    Sketcher.Constraint("Equal", 2, 17),
    Sketcher.Constraint("Symmetric", 5, 2, 8, 2, -2),
    Sketcher.Constraint("PointOnObject", 13, 2, -2),
    Sketcher.Constraint("PointOnObject", 15, 2, -2),
    Sketcher.Constraint("PointOnObject", 21, 1, -2),
    Sketcher.Constraint("Parallel", 3, 4),
    Sketcher.Constraint("Horizontal", 6, 2, 7, 2),
    Sketcher.Constraint("Horizontal", 21, 3, 9, 2),
    Sketcher.Constraint("Horizontal", 12, 2, 14, 2),
    Sketcher.Constraint("Horizontal", 9, 2, 18, 1),
    Sketcher.Constraint("Horizontal", 1, 1, 19, 1),
    Sketcher.Constraint("Horizontal", 0, 1, 20, 1),
    Sketcher.Constraint("Vertical", 1, 1, 5, 2),
    Sketcher.Constraint("Vertical", 0, 1, 6, 2),
    Sketcher.Constraint("Radius", 0, 115.0),
    Sketcher.Constraint("Radius", 5, 165.0),
    Sketcher.Constraint("Angle", 3, Q("-120 deg")),
    Sketcher.Constraint("Distance", 3, 20.0),
    Sketcher.Constraint("DistanceY", -1, 1, 0, 3, 90.0),
    Sketcher.Constraint("DistanceX", 0, 1, -1, 1, 25.0),
    Sketcher.Constraint("DistanceX", 1, 1, -1, 1, 45.0),
    Sketcher.Constraint("DistanceY", 11, 2, 12, 2, 20.0),
    Sketcher.Constraint("DistanceX", 2, 1, -1, 1, 57.5),
    Sketcher.Constraint("DistanceX", 15, 1, 15, 2, 83.809988),
    Sketcher.Constraint("DistanceY", -1, 1, 17, 1, 138.6011),
    Sketcher.Constraint("DistanceX", 11, 2, 10, 2, 38.593469),
])
pocket3 = body.newObject("PartDesign::Pocket", "Pocket002")
pocket3.Profile = sketch8
pocket3.Length = 20

# Sketch on XZ plane
sketch9 = body.newObject("Sketcher::SketchObject", "Sketch008")
sketch9.AttachmentSupport = (doc.getObject("XZ_Plane"), [""])
sketch9.MapMode = "FlatFace"
add_polygon(sketch9, [(300, 50.165054), (163.67776, 69.153153), (68.370462, 258.499506), (208.609391, 264.686517), (324.100275, 68.378693)])  # lines 0-4
sketch9.addConstraint([
    Sketcher.Constraint("DistanceX", -1, 1, 4, 2, 300.0),
    Sketcher.Constraint("Distance", 0, 137.638298),
    Sketcher.Constraint("DistanceY", 4, 2, 0, 2, 18.988099),
    Sketcher.Constraint("Distance", 2, 140.375342),
    Sketcher.Constraint("DistanceX", -1, 1, 1, 2, 68.370462),
    Sketcher.Constraint("DistanceX", -1, 1, 2, 2, 208.609391),
    Sketcher.Constraint("DistanceY", 3, 2, 0, 2, 0.77446),
    Sketcher.Constraint("DistanceY", 4, 2, 1, 2, 208.334451),
    Sketcher.Constraint("Distance", 3, 227.760633),
    Sketcher.Constraint("DistanceY", -1, 1, 0, 2, 69.153153),
])
pocket4 = body.newObject("PartDesign::Pocket", "Pocket003")
pocket4.Profile = sketch9
pocket4.Length = 10
pocket4.Reversed = True

doc.recompute()
